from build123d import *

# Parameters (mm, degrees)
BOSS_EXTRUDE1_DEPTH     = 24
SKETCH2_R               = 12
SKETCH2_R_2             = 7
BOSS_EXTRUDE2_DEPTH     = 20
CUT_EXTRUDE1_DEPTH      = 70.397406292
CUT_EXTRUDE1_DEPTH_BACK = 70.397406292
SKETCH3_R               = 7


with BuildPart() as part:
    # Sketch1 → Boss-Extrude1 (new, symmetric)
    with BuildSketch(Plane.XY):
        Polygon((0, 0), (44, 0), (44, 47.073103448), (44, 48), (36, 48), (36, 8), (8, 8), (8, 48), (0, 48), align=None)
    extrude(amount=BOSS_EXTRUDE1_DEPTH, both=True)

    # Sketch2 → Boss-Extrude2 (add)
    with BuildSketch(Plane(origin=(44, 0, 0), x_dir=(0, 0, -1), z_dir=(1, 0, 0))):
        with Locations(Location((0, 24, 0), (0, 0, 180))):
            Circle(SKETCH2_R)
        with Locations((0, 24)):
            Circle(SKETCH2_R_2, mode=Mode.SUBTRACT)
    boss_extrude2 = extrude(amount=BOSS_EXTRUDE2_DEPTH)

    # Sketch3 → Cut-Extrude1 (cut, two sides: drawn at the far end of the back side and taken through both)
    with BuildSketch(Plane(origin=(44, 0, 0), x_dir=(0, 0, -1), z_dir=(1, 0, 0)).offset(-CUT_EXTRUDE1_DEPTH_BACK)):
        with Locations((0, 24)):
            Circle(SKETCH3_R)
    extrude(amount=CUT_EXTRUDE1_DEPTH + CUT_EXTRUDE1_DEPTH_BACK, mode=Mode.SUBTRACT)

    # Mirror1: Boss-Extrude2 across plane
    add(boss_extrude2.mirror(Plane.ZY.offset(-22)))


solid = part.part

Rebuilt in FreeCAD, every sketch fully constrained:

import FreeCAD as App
import Part
import Sketcher


def add_polygon(sketch, points):
    """Adds a closed chain of lines whose ends are joined by coincident constraints."""
    first, n = sketch.GeometryCount, len(points)
    for a, b in zip(points, points[1:] + points[:1]):
        sketch.addGeometry(Part.LineSegment(App.Vector(*a, 0), App.Vector(*b, 0)), False)
    for i in range(n):
        sketch.addConstraint(Sketcher.Constraint("Coincident", first + i, 2, first + (i + 1) % n, 1))

doc = App.newDocument("Part")
body = doc.addObject("PartDesign::Body", "Body")

sketch1 = doc.addObject("Sketcher::SketchObject", "Sketch")
body.addObject(sketch1)
sketch1.AttachmentSupport = (doc.XY_Plane, [""])
sketch1.MapMode = "FlatFace"
add_polygon(sketch1, [(0, 0), (44, 0), (44, 48), (36, 48), (36, 8), (8, 8), (8, 48), (0, 48)])
sketch1.addConstraint([
    Sketcher.Constraint("Horizontal", 0),
    Sketcher.Constraint("Vertical", 1),
    Sketcher.Constraint("Horizontal", 2),
    Sketcher.Constraint("Vertical", 3),
    Sketcher.Constraint("Horizontal", 4),
    Sketcher.Constraint("Vertical", 5),
    Sketcher.Constraint("Horizontal", 6),
    Sketcher.Constraint("Vertical", 7),
    Sketcher.Constraint("Coincident", 7, 2, -1, 1),
    Sketcher.Constraint("Horizontal", 2, 2, 5, 2),
    Sketcher.Constraint("Equal", 2, 6),
    Sketcher.Constraint("DistanceX", 0, 1, 0, 2, 44.0),
    Sketcher.Constraint("DistanceX", 2, 2, 2, 1, 8.0),
    Sketcher.Constraint("DistanceY", 1, 1, 1, 2, 48.0),
    Sketcher.Constraint("DistanceY", 3, 2, 3, 1, 40.0),
])
pad1 = doc.addObject("PartDesign::Pad", "Pad")
body.addObject(pad1)
pad1.Profile = sketch1
pad1.Length = 48
pad1.Midplane = True

sketch2 = doc.addObject("Sketcher::SketchObject", "Sketch001")
body.addObject(sketch2)
sketch2.AttachmentSupport = (doc.YZ_Plane, [""])
sketch2.MapMode = "FlatFace"
sketch2.AttachmentOffset = App.Placement(App.Vector(0, 0, 44), App.Rotation())
sketch2.addGeometry([
    Part.Circle(App.Vector(24, 0, 0), App.Vector(0, 0, 1), 12),
    Part.Circle(App.Vector(24, 0, 0), App.Vector(0, 0, 1), 7),
], False)
sketch2.addConstraint([
    Sketcher.Constraint("Coincident", 1, 3, 0, 3),
    Sketcher.Constraint("PointOnObject", 0, 3, -1),
    Sketcher.Constraint("Diameter", 0, 24.0),
    Sketcher.Constraint("Diameter", 1, 14.0),
    Sketcher.Constraint("DistanceX", -1, 1, 0, 3, 24.0),
])
pad2 = doc.addObject("PartDesign::Pad", "Pad001")
body.addObject(pad2)
pad2.Profile = sketch2
pad2.Length = 20

sketch3 = doc.addObject("Sketcher::SketchObject", "Sketch002")
body.addObject(sketch3)
sketch3.AttachmentSupport = (doc.YZ_Plane, [""])
sketch3.MapMode = "FlatFace"
sketch3.AttachmentOffset = App.Placement(App.Vector(0, 0, 44), App.Rotation())
sketch3.addGeometry(Part.Circle(App.Vector(24, 0, 0), App.Vector(0, 0, 1), 7), False)
sketch3.addConstraint([
    Sketcher.Constraint("PointOnObject", 0, 3, -1),
    Sketcher.Constraint("Diameter", 0, 14.0),
    Sketcher.Constraint("DistanceX", -1, 1, 0, 3, 24.0),
])
pocket1 = doc.addObject("PartDesign::Pocket", "Pocket")
body.addObject(pocket1)
pocket1.Profile = sketch3
pocket1.Type = "ThroughAll"
pocket1.Midplane = True
doc.recompute()

datumplane = doc.addObject("PartDesign::Plane", "DatumPlane")
body.addObject(datumplane)
datumplane.AttachmentSupport = (doc.YZ_Plane, [""])
datumplane.MapMode = "FlatFace"
datumplane.AttachmentOffset = App.Placement(App.Vector(0, 0, 22), App.Rotation())
mirrored = doc.addObject("PartDesign::Mirrored", "Mirrored")
body.addObject(mirrored)
mirrored.Originals = [pad2]
mirrored.MirrorPlane = (datumplane, [""])
body.Tip = mirrored

doc.recompute()
